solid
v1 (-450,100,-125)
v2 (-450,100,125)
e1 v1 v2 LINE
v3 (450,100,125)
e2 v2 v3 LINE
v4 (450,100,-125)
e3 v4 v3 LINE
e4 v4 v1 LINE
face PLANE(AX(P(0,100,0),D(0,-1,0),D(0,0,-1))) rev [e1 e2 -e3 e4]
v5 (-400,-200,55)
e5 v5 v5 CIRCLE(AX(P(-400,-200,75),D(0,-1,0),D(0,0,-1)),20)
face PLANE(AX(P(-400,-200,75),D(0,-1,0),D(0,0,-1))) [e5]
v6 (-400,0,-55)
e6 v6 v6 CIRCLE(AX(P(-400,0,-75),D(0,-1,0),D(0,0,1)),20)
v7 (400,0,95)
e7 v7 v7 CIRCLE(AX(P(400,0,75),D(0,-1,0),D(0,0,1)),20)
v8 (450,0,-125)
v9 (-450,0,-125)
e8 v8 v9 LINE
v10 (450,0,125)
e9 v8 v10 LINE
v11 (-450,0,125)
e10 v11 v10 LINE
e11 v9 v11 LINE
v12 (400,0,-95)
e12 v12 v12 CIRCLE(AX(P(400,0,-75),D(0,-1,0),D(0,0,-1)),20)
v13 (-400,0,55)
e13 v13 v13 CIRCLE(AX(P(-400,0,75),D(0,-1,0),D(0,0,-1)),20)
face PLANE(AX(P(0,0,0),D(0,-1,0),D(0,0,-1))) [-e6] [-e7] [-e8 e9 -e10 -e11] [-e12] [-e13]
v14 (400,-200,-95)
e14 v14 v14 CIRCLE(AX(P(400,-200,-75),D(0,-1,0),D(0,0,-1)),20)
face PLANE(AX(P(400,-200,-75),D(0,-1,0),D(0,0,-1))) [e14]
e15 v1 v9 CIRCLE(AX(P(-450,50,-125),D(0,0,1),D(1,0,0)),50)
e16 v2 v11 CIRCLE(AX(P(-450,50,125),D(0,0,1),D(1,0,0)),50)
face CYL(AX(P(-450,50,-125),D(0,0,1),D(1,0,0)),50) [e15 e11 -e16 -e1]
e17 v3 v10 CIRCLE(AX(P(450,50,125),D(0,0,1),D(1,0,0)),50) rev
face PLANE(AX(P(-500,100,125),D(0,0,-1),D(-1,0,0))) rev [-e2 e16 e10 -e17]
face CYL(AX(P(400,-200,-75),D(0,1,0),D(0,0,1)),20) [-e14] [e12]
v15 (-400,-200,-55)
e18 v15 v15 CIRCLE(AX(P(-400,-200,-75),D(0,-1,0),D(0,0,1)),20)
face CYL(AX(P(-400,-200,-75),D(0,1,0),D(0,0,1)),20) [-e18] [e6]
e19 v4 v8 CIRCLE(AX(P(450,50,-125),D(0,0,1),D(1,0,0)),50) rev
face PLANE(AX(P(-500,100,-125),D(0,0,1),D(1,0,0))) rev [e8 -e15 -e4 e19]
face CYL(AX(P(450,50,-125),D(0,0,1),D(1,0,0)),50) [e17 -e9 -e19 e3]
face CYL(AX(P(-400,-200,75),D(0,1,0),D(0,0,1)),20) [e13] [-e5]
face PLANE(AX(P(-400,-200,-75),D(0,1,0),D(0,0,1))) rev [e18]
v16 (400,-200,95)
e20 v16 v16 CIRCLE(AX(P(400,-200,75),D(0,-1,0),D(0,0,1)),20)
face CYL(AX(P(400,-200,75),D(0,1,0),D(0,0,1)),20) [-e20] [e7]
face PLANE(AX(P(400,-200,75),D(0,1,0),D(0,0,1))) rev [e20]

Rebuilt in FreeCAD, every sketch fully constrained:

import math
import FreeCAD as App
import Part
import Sketcher

V = App.Vector
Q = App.Units.Quantity


def add_polygon(sketch, points):
    """Adds a closed chain of lines whose ends are joined by coincident constraints."""
    first, n = sketch.GeometryCount, len(points)
    for a, b in zip(points, points[1:] + points[:1]):
        sketch.addGeometry(Part.LineSegment(App.Vector(*a, 0), App.Vector(*b, 0)), False)
    for i in range(n):
        sketch.addConstraint(Sketcher.Constraint("Coincident", first + i, 2, first + (i + 1) % n, 1))

doc = App.newDocument("Part")
params = doc.addObject("Spreadsheet::Sheet", "Params")
for row, (alias, value) in enumerate([
    ("sketch1_width", "1000 mm"),
    ("sketch1_height", "250 mm"),
    ("pad1_length", "100 mm"),
    ("sketch2_radius", "50 mm"),
    ("sketch3_diameter", "40 mm"),
    ("pad2_length", "200 mm"),
], start=1):
    params.set(f"A{row}", alias)
    params.set(f"B{row}", "=" + value)
    params.setAlias(f"B{row}", alias)

body = doc.addObject("PartDesign::Body", "Body")

sketch1 = body.newObject("Sketcher::SketchObject", "Sketch")
sketch1.AttachmentSupport = (doc.getObject("XZ_Plane"), [""])
sketch1.MapMode = "FlatFace"
add_polygon(sketch1, [(-500, -125), (-500, 125), (500, 125), (500, -125)])
sketch1.addConstraint([
    Sketcher.Constraint("Vertical", 0),
    Sketcher.Constraint("Horizontal", 1),
    Sketcher.Constraint("Vertical", 2),
    Sketcher.Constraint("Horizontal", 3),
    Sketcher.Constraint("Symmetric", 0, 2, 2, 2, -1, 1),
    Sketcher.Constraint("DistanceX", 1, 1, 1, 2, Q("1000 mm")),
    Sketcher.Constraint("DistanceY", 0, 1, 0, 2, Q("250 mm")),
])
sketch1.setExpression("Constraints[9]", "Params.sketch1_width")
sketch1.setExpression("Constraints[10]", "Params.sketch1_height")
pad1 = body.newObject("PartDesign::Pad", "Pad")
pad1.Profile = sketch1
pad1.setExpression("Length", "Params.pad1_length")
pad1.Reversed = True

sketch2 = body.newObject("Sketcher::SketchObject", "Sketch001")
sketch2.AttachmentSupport = (doc.getObject("XY_Plane"), [""])
sketch2.MapMode = "FlatFace"
sketch2.AttachmentOffset = App.Placement(V(0, 0, 125), App.Rotation())
sketch2.addGeometry([
    Part.ArcOfCircle(Part.Circle(V(-450, 50, 0), V(0, 0, 1), 50), math.radians(90), math.radians(180)),
    Part.LineSegment(V(-450, 100, 0), V(-500, 100, 0)),
    Part.LineSegment(V(-500, 100, 0), V(-500, 50, 0)),
    Part.ArcOfCircle(Part.Circle(V(-450, 50, 0), V(0, 0, 1), 50), math.radians(-180), math.radians(-90)),
    Part.LineSegment(V(-500, 50, 0), V(-500, 0, 0)),
    Part.LineSegment(V(-500, 0, 0), V(-450, 0, 0)),
    Part.LineSegment(V(500, 100, 0), V(450, 100, 0)),
    Part.ArcOfCircle(Part.Circle(V(450, 50, 0), V(0, 0, 1), 50), math.radians(0), math.radians(90)),
    Part.LineSegment(V(500, 50, 0), V(500, 100, 0)),
    Part.LineSegment(V(500, 0, 0), V(500, 50, 0)),
    Part.ArcOfCircle(Part.Circle(V(450, 50, 0), V(0, 0, 1), 50), math.radians(-90), math.radians(0)),
    Part.LineSegment(V(450, 0, 0), V(500, 0, 0)),
], False)
sketch2.addConstraint([
    Sketcher.Constraint("Tangent", 0, 1, 1, 1),
    Sketcher.Constraint("Coincident", 1, 2, 2, 1),
    Sketcher.Constraint("Tangent", 2, 2, 0, 2),
    Sketcher.Constraint("Tangent", 3, 1, 4, 1),
    Sketcher.Constraint("Coincident", 4, 2, 5, 1),
    Sketcher.Constraint("Tangent", 5, 2, 3, 2),
    Sketcher.Constraint("Tangent", 6, 2, 7, 2),
    Sketcher.Constraint("Tangent", 7, 1, 8, 1),
    Sketcher.Constraint("Coincident", 8, 2, 6, 1),
    Sketcher.Constraint("Tangent", 9, 2, 10, 2),
    Sketcher.Constraint("Tangent", 10, 1, 11, 1),
    Sketcher.Constraint("Coincident", 11, 2, 9, 1),
    Sketcher.Constraint("Horizontal", 1),
    Sketcher.Constraint("Vertical", 2),
    Sketcher.Constraint("Vertical", 4),
    Sketcher.Constraint("Horizontal", 5),
    Sketcher.Constraint("Horizontal", 6),
    Sketcher.Constraint("Vertical", 8),
    Sketcher.Constraint("Vertical", 9),
    Sketcher.Constraint("Horizontal", 11),
    Sketcher.Constraint("Coincident", 3, 3, 0, 3),
    Sketcher.Constraint("Coincident", 10, 3, 7, 3),
    Sketcher.Constraint("Equal", 0, 3),
    Sketcher.Constraint("Equal", 3, 7),
    Sketcher.Constraint("Equal", 7, 10),
    Sketcher.Constraint("Symmetric", 5, 2, 10, 1, -1, 1),
    Sketcher.Constraint("PointOnObject", 4, 2, -1),
    Sketcher.Constraint("Radius", 0, Q("50 mm")),
    Sketcher.Constraint("DistanceX", 0, 3, -1, 1, Q("450 mm")),
])
sketch2.setExpression("Constraints[27]", "Params.sketch2_radius")
pocket1 = body.newObject("PartDesign::Pocket", "Pocket")
pocket1.Profile = sketch2
pocket1.Type = "ThroughAll"

sketch3 = body.newObject("Sketcher::SketchObject", "Sketch002")
sketch3.AttachmentSupport = (doc.getObject("XZ_Plane"), [""])
sketch3.MapMode = "FlatFace"
sketch3.addGeometry([
    Part.Circle(V(-400, 75, 0), V(0, 0, 1), 20),
    Part.Circle(V(400, 75, 0), V(0, 0, 1), 20),
    Part.Circle(V(400, -75, 0), V(0, 0, 1), 20),
    Part.Circle(V(-400, -75, 0), V(0, 0, 1), 20),
], False)
sketch3.addConstraint([
    Sketcher.Constraint("Equal", 0, 1),
    Sketcher.Constraint("Equal", 1, 2),
    Sketcher.Constraint("Equal", 2, 3),
    Sketcher.Constraint("Symmetric", 0, 3, 2, 3, -1, 1),
    Sketcher.Constraint("Symmetric", 1, 3, 3, 3, -1, 1),
    Sketcher.Constraint("Symmetric", 0, 3, 1, 3, -2),
    Sketcher.Constraint("Diameter", 0, Q("40 mm")),
    Sketcher.Constraint("DistanceX", 0, 3, -1, 1, Q("400 mm")),
    Sketcher.Constraint("DistanceY", -1, 1, 0, 3, Q("75 mm")),
])
sketch3.setExpression("Constraints[6]", "Params.sketch3_diameter")
pad2 = body.newObject("PartDesign::Pad", "Pad001")
pad2.Profile = sketch3
pad2.setExpression("Length", "Params.pad2_length")

doc.recompute()
